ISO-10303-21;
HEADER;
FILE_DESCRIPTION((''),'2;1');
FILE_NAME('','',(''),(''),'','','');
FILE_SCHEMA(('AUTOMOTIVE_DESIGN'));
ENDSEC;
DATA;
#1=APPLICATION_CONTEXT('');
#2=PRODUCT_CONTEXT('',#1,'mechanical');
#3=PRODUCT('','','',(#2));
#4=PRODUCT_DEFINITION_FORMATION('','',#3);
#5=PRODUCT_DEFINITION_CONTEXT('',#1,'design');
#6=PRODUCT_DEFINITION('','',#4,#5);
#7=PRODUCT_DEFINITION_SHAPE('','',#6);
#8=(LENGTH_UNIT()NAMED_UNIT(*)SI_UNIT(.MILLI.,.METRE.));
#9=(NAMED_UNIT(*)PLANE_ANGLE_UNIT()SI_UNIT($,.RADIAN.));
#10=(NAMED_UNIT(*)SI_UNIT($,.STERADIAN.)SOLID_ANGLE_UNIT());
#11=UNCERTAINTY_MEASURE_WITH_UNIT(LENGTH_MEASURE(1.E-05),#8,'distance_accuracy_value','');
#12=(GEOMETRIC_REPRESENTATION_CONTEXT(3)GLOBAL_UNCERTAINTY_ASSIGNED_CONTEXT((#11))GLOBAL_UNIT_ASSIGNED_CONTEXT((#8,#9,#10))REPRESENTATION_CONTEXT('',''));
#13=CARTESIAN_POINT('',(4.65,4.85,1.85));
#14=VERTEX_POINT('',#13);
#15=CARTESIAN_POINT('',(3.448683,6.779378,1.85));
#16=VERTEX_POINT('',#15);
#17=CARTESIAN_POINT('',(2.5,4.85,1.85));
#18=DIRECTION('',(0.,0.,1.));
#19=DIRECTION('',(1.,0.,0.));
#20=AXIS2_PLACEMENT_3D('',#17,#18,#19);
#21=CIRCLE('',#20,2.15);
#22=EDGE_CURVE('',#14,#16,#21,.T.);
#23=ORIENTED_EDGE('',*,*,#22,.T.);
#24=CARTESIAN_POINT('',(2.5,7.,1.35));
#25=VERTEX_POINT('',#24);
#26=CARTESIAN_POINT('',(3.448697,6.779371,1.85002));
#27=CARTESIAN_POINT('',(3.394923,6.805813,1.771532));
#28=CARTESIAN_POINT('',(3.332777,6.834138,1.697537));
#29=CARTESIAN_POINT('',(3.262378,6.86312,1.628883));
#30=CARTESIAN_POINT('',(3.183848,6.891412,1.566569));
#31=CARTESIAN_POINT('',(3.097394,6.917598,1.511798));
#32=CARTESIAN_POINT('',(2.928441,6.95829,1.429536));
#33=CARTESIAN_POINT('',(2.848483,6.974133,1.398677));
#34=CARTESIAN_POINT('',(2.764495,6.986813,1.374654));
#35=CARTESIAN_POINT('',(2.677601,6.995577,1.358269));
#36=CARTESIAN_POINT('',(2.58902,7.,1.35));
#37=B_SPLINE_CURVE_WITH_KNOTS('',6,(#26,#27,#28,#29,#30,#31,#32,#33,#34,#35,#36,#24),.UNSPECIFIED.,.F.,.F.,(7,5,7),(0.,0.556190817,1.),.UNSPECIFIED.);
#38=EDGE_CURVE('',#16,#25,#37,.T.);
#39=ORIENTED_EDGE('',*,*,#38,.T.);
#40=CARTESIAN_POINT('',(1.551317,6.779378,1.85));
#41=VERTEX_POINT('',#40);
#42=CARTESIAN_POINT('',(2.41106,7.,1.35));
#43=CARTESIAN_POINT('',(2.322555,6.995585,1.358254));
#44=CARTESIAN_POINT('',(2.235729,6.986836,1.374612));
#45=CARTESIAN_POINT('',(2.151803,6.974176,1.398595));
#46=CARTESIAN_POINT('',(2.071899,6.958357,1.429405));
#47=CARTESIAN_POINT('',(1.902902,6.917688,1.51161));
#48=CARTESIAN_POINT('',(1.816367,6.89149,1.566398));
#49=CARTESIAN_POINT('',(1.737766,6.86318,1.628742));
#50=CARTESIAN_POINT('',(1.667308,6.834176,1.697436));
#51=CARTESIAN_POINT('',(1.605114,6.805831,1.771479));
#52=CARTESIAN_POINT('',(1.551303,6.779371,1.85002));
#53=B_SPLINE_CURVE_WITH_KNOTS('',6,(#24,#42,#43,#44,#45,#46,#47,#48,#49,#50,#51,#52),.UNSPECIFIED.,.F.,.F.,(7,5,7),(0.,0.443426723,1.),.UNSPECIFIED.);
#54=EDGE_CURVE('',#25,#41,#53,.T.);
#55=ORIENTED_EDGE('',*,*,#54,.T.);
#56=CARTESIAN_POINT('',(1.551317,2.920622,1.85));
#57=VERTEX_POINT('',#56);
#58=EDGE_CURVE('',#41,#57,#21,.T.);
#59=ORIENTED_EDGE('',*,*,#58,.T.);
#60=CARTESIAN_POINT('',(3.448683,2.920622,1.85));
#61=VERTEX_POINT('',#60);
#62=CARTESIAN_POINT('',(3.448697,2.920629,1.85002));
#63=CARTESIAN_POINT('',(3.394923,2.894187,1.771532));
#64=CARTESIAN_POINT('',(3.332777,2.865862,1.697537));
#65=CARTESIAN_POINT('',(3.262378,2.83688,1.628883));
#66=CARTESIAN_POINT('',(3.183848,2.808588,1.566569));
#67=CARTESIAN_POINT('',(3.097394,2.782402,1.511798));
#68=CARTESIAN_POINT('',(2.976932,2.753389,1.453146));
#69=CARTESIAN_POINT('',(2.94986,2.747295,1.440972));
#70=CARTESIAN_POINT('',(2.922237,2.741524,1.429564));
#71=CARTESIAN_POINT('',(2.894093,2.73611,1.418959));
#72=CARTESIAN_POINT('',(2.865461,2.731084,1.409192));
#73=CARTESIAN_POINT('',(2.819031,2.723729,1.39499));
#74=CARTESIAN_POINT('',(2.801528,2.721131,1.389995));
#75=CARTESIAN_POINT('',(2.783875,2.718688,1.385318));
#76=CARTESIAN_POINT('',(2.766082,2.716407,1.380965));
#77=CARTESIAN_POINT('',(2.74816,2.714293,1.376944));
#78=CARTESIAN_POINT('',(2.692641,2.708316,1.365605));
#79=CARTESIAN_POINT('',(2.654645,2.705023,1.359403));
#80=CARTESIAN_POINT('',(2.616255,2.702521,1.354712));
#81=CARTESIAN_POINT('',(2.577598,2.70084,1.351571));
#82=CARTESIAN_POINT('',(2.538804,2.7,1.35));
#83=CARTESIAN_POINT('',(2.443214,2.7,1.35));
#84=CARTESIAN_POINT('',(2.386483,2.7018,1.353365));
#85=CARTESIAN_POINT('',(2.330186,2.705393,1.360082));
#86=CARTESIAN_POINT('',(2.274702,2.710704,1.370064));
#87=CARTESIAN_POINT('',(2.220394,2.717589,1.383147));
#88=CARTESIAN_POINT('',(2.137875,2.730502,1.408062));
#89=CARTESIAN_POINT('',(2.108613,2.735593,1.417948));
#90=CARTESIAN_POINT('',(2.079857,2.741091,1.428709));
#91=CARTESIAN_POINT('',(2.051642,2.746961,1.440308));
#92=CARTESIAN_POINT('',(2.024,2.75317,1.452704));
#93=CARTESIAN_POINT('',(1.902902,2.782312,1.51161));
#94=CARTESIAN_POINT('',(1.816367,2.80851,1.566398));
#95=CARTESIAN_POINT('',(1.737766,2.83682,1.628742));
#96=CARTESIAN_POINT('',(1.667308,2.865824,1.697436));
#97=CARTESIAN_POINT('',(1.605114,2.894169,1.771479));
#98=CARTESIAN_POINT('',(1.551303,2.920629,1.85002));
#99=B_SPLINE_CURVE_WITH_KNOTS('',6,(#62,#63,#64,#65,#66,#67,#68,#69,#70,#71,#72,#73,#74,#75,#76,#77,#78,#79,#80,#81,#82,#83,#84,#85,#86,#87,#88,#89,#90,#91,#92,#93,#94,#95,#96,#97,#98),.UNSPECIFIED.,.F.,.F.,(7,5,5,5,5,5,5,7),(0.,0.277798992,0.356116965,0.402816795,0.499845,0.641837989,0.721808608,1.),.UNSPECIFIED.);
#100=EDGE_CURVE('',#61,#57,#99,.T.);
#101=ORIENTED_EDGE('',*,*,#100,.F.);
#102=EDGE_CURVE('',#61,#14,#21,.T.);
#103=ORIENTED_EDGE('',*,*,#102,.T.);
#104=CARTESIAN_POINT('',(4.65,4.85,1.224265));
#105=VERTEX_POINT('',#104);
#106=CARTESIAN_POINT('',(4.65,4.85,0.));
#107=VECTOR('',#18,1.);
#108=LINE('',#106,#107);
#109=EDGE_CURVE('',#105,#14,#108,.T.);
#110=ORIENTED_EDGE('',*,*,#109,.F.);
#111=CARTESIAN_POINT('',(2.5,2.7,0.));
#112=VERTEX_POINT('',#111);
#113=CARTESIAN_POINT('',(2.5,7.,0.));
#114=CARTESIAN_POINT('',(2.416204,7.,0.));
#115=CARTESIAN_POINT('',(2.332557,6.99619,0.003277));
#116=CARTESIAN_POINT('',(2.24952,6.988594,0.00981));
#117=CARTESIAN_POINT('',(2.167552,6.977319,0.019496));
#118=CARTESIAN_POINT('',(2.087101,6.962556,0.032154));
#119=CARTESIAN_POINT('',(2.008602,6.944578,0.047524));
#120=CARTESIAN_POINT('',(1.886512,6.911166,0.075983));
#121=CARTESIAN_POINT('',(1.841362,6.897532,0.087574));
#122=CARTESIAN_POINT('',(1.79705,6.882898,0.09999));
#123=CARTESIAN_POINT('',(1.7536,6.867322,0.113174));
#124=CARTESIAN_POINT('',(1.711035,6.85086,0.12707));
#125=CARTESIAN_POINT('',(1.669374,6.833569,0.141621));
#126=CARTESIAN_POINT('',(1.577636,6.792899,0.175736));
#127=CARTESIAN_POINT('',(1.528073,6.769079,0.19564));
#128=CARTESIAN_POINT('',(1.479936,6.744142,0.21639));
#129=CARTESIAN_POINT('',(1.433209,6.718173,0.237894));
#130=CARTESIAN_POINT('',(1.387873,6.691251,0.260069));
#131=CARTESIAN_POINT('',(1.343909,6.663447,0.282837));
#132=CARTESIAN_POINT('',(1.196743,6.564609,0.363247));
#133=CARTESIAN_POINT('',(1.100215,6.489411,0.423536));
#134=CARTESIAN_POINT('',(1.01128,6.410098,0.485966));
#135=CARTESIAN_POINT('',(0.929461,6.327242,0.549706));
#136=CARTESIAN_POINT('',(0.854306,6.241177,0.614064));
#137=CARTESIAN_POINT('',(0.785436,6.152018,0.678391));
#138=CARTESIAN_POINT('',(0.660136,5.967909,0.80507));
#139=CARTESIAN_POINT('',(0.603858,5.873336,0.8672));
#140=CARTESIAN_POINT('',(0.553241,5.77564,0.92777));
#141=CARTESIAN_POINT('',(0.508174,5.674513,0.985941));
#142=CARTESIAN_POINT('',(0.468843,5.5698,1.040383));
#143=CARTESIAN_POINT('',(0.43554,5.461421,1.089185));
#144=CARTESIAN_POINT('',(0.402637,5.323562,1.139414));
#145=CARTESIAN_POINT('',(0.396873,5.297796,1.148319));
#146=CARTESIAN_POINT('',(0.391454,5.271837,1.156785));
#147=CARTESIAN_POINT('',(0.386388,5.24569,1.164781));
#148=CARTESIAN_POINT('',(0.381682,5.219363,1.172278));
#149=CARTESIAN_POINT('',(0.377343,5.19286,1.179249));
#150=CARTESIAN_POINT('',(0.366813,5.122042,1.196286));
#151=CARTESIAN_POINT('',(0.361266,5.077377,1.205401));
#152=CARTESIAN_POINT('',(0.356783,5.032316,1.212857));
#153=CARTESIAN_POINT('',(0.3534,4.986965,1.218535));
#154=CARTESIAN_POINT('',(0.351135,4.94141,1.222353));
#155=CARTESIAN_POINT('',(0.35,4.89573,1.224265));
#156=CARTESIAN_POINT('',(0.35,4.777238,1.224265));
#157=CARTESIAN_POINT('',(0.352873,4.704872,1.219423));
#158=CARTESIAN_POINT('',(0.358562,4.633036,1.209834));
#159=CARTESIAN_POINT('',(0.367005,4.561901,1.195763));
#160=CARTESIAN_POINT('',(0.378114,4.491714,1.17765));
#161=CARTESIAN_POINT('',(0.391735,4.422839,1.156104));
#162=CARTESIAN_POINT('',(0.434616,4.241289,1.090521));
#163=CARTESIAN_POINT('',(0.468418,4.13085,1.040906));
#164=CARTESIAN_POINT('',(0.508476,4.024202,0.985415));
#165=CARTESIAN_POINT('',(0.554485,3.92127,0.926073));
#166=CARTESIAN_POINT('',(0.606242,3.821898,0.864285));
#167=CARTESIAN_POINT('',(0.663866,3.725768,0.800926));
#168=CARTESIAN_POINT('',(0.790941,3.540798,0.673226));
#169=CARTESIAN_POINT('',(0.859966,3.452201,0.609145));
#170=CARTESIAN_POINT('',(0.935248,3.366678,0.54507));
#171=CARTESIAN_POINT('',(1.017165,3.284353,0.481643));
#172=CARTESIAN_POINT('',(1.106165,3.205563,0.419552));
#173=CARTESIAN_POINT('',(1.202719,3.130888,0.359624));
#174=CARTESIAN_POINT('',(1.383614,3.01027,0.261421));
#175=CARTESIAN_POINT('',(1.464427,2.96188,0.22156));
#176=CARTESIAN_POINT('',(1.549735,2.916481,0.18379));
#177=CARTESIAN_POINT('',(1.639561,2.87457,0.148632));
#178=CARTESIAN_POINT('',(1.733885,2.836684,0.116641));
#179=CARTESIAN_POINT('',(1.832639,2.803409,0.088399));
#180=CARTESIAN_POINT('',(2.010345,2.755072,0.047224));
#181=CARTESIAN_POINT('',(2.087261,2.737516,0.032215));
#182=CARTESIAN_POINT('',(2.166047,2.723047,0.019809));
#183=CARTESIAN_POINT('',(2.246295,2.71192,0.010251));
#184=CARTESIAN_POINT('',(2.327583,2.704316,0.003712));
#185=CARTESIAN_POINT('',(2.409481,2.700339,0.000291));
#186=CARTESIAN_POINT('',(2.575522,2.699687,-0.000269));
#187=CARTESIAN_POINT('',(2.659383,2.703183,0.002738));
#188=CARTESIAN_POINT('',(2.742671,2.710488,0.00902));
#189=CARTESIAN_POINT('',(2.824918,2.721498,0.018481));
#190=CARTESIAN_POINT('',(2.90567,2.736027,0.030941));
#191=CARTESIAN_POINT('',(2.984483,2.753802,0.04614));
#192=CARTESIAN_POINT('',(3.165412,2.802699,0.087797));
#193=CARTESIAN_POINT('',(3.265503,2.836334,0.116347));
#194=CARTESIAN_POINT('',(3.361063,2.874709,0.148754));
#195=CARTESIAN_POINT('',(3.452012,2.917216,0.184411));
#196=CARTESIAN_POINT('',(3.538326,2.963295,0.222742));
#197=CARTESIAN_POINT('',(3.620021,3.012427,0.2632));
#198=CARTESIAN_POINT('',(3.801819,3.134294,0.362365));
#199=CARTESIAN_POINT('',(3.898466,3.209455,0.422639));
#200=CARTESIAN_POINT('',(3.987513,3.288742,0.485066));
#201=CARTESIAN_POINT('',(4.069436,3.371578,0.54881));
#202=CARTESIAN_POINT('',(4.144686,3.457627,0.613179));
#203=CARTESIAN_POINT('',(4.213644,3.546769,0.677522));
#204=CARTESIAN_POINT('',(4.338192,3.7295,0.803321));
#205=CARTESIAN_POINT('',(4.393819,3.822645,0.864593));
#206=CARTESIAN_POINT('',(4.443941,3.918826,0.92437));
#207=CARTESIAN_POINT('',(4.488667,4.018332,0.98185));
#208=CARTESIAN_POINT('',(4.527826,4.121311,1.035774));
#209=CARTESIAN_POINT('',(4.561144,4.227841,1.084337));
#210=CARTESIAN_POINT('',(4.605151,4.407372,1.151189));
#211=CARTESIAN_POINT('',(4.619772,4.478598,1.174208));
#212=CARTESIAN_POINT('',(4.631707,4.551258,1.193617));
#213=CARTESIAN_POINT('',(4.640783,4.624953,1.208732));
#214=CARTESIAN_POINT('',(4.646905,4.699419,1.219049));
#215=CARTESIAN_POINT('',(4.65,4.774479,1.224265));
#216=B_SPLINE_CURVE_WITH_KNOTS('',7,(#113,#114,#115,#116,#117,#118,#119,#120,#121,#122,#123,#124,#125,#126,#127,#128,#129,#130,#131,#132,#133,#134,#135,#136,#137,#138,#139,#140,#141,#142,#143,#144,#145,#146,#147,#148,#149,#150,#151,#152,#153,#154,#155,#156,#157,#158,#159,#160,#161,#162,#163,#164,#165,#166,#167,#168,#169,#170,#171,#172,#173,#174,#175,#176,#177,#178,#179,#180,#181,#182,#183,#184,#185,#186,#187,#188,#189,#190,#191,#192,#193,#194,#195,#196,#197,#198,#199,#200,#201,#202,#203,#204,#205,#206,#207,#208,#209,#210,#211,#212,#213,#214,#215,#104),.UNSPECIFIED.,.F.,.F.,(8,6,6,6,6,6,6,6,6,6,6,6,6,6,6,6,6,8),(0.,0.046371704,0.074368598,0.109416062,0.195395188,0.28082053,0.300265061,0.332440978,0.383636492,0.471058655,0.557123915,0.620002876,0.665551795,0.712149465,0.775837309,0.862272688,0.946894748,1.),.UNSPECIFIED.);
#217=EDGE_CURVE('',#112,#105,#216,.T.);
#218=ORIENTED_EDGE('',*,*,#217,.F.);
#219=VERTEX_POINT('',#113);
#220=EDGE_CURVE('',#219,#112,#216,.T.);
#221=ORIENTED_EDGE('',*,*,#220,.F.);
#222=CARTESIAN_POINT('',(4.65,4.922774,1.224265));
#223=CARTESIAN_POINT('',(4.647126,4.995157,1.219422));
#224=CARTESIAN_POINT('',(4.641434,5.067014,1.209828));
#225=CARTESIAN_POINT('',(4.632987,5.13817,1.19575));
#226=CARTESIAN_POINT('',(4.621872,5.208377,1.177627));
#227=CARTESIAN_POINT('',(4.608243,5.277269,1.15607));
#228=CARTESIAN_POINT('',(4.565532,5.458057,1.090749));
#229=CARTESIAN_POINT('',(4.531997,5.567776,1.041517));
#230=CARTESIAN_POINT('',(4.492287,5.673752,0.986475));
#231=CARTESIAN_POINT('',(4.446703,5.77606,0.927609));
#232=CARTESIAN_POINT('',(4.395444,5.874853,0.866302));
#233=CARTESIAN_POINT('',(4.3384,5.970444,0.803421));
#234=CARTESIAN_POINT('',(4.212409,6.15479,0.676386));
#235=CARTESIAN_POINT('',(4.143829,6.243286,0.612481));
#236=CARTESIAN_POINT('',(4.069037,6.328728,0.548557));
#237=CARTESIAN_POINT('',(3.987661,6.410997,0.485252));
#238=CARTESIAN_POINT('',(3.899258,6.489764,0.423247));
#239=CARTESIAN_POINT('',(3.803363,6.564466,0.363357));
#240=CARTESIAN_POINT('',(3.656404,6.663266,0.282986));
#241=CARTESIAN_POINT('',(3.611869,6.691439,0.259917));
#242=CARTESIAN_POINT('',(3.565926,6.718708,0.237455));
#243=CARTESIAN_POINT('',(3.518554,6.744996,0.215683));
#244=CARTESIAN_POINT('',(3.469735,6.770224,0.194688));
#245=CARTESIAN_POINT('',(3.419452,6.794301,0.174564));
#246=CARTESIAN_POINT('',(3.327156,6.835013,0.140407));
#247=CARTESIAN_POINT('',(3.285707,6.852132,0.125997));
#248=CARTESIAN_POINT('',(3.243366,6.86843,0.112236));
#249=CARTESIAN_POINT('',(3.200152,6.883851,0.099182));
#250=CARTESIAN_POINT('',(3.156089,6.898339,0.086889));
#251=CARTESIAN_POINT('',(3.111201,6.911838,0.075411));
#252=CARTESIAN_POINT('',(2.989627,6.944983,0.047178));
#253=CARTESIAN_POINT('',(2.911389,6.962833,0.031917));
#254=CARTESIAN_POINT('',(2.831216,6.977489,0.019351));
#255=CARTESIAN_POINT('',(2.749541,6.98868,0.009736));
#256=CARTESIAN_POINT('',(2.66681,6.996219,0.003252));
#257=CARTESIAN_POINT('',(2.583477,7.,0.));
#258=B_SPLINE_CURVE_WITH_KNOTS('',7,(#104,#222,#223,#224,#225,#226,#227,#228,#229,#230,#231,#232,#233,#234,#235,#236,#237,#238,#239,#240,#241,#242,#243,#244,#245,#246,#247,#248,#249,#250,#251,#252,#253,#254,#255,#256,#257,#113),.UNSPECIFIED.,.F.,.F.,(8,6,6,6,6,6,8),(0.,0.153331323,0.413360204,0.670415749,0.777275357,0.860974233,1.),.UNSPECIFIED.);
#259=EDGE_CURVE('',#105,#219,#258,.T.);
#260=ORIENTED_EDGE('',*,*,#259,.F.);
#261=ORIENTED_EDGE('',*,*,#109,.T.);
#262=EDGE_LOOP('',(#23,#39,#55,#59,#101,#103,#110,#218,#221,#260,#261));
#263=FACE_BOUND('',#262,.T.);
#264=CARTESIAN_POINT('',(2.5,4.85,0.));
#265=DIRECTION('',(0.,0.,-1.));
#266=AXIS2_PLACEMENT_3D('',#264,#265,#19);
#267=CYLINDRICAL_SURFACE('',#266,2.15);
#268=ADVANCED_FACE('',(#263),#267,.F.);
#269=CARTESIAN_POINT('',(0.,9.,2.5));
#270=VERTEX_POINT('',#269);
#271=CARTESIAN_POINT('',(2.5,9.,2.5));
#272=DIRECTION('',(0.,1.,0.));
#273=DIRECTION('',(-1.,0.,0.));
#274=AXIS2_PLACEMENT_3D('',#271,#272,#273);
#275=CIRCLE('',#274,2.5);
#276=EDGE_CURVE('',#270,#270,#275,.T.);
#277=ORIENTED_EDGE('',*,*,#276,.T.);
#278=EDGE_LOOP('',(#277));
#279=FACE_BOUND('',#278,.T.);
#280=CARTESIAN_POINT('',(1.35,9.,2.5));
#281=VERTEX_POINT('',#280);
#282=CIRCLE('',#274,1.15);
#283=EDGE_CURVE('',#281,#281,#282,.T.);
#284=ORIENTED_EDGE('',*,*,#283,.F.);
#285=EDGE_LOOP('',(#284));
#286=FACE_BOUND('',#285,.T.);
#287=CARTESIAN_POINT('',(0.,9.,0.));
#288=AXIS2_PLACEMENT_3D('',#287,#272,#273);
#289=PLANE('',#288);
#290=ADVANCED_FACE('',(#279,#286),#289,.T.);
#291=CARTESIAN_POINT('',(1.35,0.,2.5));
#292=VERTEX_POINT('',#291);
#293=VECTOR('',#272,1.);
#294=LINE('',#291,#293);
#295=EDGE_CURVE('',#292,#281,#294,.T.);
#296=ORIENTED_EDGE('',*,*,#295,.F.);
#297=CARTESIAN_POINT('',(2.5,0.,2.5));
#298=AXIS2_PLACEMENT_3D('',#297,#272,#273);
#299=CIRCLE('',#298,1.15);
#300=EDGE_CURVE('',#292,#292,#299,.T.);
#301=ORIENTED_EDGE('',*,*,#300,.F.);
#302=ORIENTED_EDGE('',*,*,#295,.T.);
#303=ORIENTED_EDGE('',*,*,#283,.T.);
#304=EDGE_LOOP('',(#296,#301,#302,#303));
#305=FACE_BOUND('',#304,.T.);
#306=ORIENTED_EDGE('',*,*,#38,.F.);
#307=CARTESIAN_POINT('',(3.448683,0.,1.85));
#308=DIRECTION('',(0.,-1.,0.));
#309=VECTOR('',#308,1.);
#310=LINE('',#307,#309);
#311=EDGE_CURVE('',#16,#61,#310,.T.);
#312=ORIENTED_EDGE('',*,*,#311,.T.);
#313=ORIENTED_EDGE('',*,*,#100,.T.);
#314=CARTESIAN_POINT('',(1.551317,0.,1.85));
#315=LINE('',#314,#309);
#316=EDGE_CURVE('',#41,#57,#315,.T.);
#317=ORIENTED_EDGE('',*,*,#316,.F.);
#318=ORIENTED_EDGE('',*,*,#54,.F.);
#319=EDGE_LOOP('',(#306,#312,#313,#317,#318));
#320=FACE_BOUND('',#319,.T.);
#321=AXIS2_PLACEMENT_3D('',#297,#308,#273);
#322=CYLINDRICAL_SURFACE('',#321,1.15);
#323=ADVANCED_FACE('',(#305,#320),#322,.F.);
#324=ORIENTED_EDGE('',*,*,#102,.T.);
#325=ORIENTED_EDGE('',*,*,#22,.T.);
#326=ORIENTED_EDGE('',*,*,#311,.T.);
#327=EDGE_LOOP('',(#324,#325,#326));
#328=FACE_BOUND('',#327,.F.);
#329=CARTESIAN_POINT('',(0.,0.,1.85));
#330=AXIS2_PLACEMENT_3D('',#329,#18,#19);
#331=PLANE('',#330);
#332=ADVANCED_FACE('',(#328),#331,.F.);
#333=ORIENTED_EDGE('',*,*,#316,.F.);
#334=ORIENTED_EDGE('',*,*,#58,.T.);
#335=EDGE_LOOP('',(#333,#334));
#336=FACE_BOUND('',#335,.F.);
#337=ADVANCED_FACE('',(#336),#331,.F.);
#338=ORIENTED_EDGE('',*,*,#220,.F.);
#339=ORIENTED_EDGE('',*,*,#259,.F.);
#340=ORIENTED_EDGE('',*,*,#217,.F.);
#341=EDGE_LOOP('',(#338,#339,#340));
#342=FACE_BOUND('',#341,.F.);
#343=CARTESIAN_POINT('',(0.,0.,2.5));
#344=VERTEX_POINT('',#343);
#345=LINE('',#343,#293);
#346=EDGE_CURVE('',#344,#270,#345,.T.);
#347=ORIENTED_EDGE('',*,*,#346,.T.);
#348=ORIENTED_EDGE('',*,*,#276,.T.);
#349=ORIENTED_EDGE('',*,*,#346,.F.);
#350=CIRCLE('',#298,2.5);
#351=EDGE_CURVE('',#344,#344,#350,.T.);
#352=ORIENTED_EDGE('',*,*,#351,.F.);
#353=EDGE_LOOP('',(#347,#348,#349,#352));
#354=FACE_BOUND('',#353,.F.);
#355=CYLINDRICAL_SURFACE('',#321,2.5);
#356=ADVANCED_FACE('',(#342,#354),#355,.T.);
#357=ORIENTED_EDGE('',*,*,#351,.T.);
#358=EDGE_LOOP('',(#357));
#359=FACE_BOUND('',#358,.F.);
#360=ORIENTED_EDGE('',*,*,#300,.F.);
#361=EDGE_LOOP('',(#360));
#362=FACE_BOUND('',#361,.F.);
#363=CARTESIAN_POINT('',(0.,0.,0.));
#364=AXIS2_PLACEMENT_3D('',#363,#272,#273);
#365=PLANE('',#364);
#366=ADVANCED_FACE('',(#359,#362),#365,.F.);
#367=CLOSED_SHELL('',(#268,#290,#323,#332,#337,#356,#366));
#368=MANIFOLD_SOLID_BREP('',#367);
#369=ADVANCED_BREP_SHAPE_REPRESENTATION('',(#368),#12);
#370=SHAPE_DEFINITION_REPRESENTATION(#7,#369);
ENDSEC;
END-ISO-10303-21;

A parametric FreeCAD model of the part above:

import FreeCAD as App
import Part
import Sketcher

doc = App.newDocument("Part")
body = doc.addObject("PartDesign::Body", "Body")

# Sketch on XZ plane
sketch1 = doc.addObject("Sketcher::SketchObject", "Sketch")
body.addObject(sketch1)
sketch1.AttachmentSupport = (doc.XZ_Plane, [""])
sketch1.MapMode = "FlatFace"
sketch1.addGeometry([
    Part.Circle(App.Vector(2.5, 2.5, 0), App.Vector(0, 0, 1), 2.5),
    Part.Circle(App.Vector(2.5, 2.5, 0), App.Vector(0, 0, 1), 1.1),
], False)
sketch1.addConstraint([
    Sketcher.Constraint("Coincident", 1, 3, 0, 3),
    Sketcher.Constraint("Diameter", 0, 5.0),
    Sketcher.Constraint("Diameter", 1, 2.3),
    Sketcher.Constraint("DistanceX", -1, 1, 0, 3, 2.5),
    Sketcher.Constraint("DistanceY", -1, 1, 0, 3, 2.5),
])
pad1 = doc.addObject("PartDesign::Pad", "Pad")
body.addObject(pad1)
pad1.Profile = sketch1
pad1.Length = 9
pad1.Reversed = True

# Sketch on XY plane
sketch2 = doc.addObject("Sketcher::SketchObject", "Sketch001")
body.addObject(sketch2)
sketch2.AttachmentSupport = (doc.XY_Plane, [""])
sketch2.MapMode = "FlatFace"
sketch2.addGeometry(Part.Circle(App.Vector(2.5, 4.8, 0), App.Vector(0, 0, 1), 2.1), False)
sketch2.addConstraint([
    Sketcher.Constraint("Diameter", 0, 4.3),
    Sketcher.Constraint("DistanceX", -1, 1, 0, 3, 2.5),
    Sketcher.Constraint("DistanceY", -1, 1, 0, 3, 4.85),
])
pocket1 = doc.addObject("PartDesign::Pocket", "Pocket")
body.addObject(pocket1)
pocket1.Profile = sketch2
pocket1.Length = 1.85
pocket1.Reversed = True

doc.recompute()
